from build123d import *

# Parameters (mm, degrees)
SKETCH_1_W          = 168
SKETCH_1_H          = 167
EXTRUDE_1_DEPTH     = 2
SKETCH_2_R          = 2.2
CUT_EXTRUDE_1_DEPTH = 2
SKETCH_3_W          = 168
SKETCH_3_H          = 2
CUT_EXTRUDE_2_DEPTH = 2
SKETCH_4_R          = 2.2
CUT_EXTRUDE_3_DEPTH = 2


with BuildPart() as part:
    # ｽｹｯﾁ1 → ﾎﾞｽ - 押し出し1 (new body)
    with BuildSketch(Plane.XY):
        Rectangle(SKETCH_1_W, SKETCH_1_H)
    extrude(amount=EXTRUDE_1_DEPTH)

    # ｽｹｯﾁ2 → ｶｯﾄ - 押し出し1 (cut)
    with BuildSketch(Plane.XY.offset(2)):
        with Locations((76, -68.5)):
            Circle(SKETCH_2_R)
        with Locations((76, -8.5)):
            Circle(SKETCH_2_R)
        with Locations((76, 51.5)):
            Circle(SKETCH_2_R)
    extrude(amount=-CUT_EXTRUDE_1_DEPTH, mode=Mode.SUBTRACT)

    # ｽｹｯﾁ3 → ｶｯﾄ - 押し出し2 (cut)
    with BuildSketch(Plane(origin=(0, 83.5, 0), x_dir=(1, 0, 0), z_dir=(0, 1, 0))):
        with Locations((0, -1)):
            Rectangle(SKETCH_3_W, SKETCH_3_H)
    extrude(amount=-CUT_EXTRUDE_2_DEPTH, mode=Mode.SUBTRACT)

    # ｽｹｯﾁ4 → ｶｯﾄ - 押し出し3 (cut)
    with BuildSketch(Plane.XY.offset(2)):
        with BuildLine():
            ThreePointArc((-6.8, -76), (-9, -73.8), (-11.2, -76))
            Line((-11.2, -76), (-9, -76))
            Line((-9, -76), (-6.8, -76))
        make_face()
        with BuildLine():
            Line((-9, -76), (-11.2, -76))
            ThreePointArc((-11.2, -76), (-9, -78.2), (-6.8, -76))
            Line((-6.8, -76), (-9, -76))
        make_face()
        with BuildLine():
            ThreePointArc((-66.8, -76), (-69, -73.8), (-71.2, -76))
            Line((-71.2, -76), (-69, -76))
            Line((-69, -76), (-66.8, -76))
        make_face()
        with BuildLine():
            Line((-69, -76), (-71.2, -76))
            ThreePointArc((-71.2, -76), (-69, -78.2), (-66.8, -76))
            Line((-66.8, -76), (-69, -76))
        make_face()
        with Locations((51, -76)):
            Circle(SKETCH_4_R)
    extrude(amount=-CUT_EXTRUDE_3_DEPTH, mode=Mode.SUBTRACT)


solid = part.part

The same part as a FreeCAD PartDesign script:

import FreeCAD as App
import Part
import Sketcher

V = App.Vector
Q = App.Units.Quantity

doc = App.newDocument("Part")
params = doc.addObject("Spreadsheet::Sheet", "Params")
for row, (alias, value) in enumerate([
    ("sketch1_width", "168 mm"),
    ("sketch1_height", "167 mm"),
    ("pad1_length", "2 mm"),
    ("sketch2_diameter", "4.4 mm"),
    ("pocket1_length", "2 mm"),
    ("sketch3_width", "168 mm"),
    ("sketch3_height", "2 mm"),
    ("pocket2_length", "2 mm"),
    ("sketch4_diameter", "4.4 mm"),
    ("pocket3_length", "2 mm"),
], start=1):
    params.set(f"A{row}", alias)
    params.set(f"B{row}", "=" + value)
    params.setAlias(f"B{row}", alias)

body = doc.addObject("PartDesign::Body", "Body")

# Sketch on XY plane
sketch1 = body.newObject("Sketcher::SketchObject", "Sketch")
sketch1.AttachmentSupport = (doc.getObject("XY_Plane"), [""])
sketch1.MapMode = "FlatFace"
sketch1.addGeometry([
    Part.LineSegment(V(-84, 84, 0), V(-84, -84, 0)),
    Part.LineSegment(V(-84, -84, 0), V(84, -84, 0)),
    Part.LineSegment(V(84, -84, 0), V(84, 84, 0)),
    Part.LineSegment(V(84, 84, 0), V(-84, 84, 0)),
], False)
sketch1.addConstraint([
    Sketcher.Constraint("Coincident", 0, 2, 1, 1),
    Sketcher.Constraint("Coincident", 1, 2, 2, 1),
    Sketcher.Constraint("Coincident", 2, 2, 3, 1),
    Sketcher.Constraint("Coincident", 3, 2, 0, 1),
    Sketcher.Constraint("Vertical", 0),
    Sketcher.Constraint("Horizontal", 1),
    Sketcher.Constraint("Vertical", 2),
    Sketcher.Constraint("Horizontal", 3),
    Sketcher.Constraint("Symmetric", 0, 2, 2, 2, -1, 1),
    Sketcher.Constraint("DistanceX", 1, 1, 1, 2, Q("168 mm")),
    Sketcher.Constraint("DistanceY", 0, 2, 0, 1, Q("167 mm")),
])
sketch1.setExpression("Constraints[9]", "Params.sketch1_width")
sketch1.setExpression("Constraints[10]", "Params.sketch1_height")
pad1 = body.newObject("PartDesign::Pad", "Pad")
pad1.Profile = sketch1
pad1.setExpression("Length", "Params.pad1_length")

# Sketch on XY plane
sketch2 = body.newObject("Sketcher::SketchObject", "Sketch001")
sketch2.AttachmentSupport = (doc.getObject("XY_Plane"), [""])
sketch2.MapMode = "FlatFace"
sketch2.AttachmentOffset = App.Placement(V(0, 0, 2), App.Rotation())
sketch2.addGeometry([
    Part.Circle(V(76, -68.5, 0), V(0, 0, 1), 2.2),
    Part.Circle(V(76, -8.5, 0), V(0, 0, 1), 2.2),
    Part.Circle(V(76, 51.5, 0), V(0, 0, 1), 2.2),
], False)
sketch2.addConstraint([
    Sketcher.Constraint("Equal", 0, 1),
    Sketcher.Constraint("Equal", 1, 2),
    Sketcher.Constraint("Vertical", 0, 3, 1, 3),
    Sketcher.Constraint("Vertical", 1, 3, 2, 3),
    Sketcher.Constraint("Diameter", 0, Q("4.4 mm")),
    Sketcher.Constraint("DistanceX", -1, 1, 0, 3, Q("76 mm")),
    Sketcher.Constraint("DistanceY", 0, 3, 1, 3, Q("60 mm")),
    Sketcher.Constraint("DistanceY", 1, 3, 2, 3, Q("60 mm")),
    Sketcher.Constraint("DistanceY", 0, 3, -1, 1, Q("68.5 mm")),
])
sketch2.setExpression("Constraints[4]", "Params.sketch2_diameter")
pocket1 = body.newObject("PartDesign::Pocket", "Pocket")
pocket1.Profile = sketch2
pocket1.setExpression("Length", "Params.pocket1_length")

# Sketch on XZ plane
sketch3 = body.newObject("Sketcher::SketchObject", "Sketch002")
sketch3.AttachmentSupport = (doc.getObject("XZ_Plane"), [""])
sketch3.MapMode = "FlatFace"
sketch3.AttachmentOffset = App.Placement(V(0, 0, -83.5), App.Rotation())
sketch3.addGeometry([
    Part.LineSegment(V(-84, 0, 0), V(-84, 2, 0)),
    Part.LineSegment(V(-84, 2, 0), V(84, 2, 0)),
    Part.LineSegment(V(84, 2, 0), V(84, 0, 0)),
    Part.LineSegment(V(84, 0, 0), V(-84, 0, 0)),
], False)
sketch3.addConstraint([
    Sketcher.Constraint("Coincident", 0, 2, 1, 1),
    Sketcher.Constraint("Coincident", 1, 2, 2, 1),
    Sketcher.Constraint("Coincident", 2, 2, 3, 1),
    Sketcher.Constraint("Coincident", 3, 2, 0, 1),
    Sketcher.Constraint("Vertical", 0),
    Sketcher.Constraint("Horizontal", 1),
    Sketcher.Constraint("Vertical", 2),
    Sketcher.Constraint("Horizontal", 3),
    Sketcher.Constraint("Symmetric", 2, 2, 3, 2, -1, 1),
    Sketcher.Constraint("DistanceX", 1, 1, 1, 2, Q("168 mm")),
    Sketcher.Constraint("DistanceY", 0, 1, 0, 2, Q("2 mm")),
])
sketch3.setExpression("Constraints[9]", "Params.sketch3_width")
sketch3.setExpression("Constraints[10]", "Params.sketch3_height")
pocket2 = body.newObject("PartDesign::Pocket", "Pocket001")
pocket2.Profile = sketch3
pocket2.setExpression("Length", "Params.pocket2_length")
pocket2.Reversed = True

# Sketch on XY plane
sketch4 = body.newObject("Sketcher::SketchObject", "Sketch003")
sketch4.AttachmentSupport = (doc.getObject("XY_Plane"), [""])
sketch4.MapMode = "FlatFace"
sketch4.AttachmentOffset = App.Placement(V(0, 0, 2), App.Rotation())
sketch4.addGeometry([
    Part.Circle(V(-9, -76, 0), V(0, 0, 1), 2.2),
    Part.Circle(V(-69, -76, 0), V(0, 0, 1), 2.2),
    Part.Circle(V(51, -76, 0), V(0, 0, 1), 2.2),
], False)
sketch4.addConstraint([
    Sketcher.Constraint("Equal", 0, 1),
    Sketcher.Constraint("Equal", 1, 2),
    Sketcher.Constraint("Horizontal", 0, 3, 1, 3),
    Sketcher.Constraint("Horizontal", 1, 3, 2, 3),
    Sketcher.Constraint("Diameter", 0, Q("4.4 mm")),
    Sketcher.Constraint("DistanceX", 0, 3, -1, 1, Q("9 mm")),
    Sketcher.Constraint("DistanceY", 0, 3, -1, 1, Q("76 mm")),
    Sketcher.Constraint("DistanceX", 1, 3, -1, 1, Q("69 mm")),
    Sketcher.Constraint("DistanceX", -1, 1, 2, 3, Q("51 mm")),
])
sketch4.setExpression("Constraints[4]", "Params.sketch4_diameter")
pocket3 = body.newObject("PartDesign::Pocket", "Pocket002")
pocket3.Profile = sketch4
pocket3.setExpression("Length", "Params.pocket3_length")

doc.recompute()
